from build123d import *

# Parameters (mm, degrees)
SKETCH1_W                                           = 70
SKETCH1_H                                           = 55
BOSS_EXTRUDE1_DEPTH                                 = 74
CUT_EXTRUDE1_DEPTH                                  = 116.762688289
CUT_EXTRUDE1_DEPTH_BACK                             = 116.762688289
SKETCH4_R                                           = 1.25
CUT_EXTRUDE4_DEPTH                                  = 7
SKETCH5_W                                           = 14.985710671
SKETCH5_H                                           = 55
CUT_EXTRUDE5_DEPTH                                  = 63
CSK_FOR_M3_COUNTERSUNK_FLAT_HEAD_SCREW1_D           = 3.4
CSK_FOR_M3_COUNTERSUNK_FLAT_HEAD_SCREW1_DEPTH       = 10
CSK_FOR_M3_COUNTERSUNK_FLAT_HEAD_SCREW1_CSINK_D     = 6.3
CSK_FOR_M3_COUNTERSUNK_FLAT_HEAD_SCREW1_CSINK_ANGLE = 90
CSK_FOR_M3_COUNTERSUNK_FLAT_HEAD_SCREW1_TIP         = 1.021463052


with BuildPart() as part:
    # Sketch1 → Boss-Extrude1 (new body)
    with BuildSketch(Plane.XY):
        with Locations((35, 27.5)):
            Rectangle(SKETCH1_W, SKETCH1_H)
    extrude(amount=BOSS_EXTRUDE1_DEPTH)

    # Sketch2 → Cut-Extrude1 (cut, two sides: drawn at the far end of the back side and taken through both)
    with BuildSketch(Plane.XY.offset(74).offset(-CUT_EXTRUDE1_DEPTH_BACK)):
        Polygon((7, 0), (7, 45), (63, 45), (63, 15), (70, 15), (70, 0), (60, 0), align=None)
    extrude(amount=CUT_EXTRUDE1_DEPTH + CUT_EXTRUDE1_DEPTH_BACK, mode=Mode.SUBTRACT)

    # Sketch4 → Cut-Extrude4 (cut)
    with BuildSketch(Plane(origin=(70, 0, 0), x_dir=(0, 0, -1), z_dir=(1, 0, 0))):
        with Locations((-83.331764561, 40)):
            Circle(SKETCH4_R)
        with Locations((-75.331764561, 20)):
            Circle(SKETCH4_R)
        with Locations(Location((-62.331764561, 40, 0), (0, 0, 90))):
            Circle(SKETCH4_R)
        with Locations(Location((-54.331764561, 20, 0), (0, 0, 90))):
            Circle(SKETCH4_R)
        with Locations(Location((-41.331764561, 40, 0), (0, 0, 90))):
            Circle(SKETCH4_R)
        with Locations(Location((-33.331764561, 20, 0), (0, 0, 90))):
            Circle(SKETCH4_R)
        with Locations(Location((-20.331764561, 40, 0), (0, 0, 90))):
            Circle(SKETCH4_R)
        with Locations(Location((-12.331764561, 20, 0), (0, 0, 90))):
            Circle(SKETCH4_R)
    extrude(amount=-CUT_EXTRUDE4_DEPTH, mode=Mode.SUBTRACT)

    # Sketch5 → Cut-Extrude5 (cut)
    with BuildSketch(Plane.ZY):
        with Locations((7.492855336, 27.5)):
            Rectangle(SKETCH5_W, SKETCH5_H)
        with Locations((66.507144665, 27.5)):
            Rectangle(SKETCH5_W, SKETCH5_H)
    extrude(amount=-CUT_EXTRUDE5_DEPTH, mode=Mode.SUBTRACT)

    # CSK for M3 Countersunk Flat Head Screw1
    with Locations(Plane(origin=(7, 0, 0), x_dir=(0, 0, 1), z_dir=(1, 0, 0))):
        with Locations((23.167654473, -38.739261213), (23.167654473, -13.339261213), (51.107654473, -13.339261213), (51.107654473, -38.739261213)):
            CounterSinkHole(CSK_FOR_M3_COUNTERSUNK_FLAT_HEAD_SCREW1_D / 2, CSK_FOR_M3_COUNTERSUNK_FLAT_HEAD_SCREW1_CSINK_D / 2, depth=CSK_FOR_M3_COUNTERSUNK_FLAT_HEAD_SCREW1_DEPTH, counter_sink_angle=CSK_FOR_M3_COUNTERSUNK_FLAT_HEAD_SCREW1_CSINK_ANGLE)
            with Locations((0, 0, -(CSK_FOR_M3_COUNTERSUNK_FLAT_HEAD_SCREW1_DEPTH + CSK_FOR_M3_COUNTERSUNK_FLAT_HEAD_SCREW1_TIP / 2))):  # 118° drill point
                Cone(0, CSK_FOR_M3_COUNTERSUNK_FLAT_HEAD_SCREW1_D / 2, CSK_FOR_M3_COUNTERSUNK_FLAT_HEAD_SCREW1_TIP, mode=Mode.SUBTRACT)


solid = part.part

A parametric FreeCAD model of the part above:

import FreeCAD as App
import Part
import Sketcher

doc = App.newDocument("Part")
body = doc.addObject("PartDesign::Body", "Body")

# Sketch on XY plane
sketch1 = doc.addObject("Sketcher::SketchObject", "Sketch")
body.addObject(sketch1)
sketch1.AttachmentSupport = (doc.XY_Plane, [""])
sketch1.MapMode = "FlatFace"
sketch1.addGeometry([
    Part.LineSegment(App.Vector(0, 55, 0), App.Vector(0, 0, 0)),
    Part.LineSegment(App.Vector(0, 0, 0), App.Vector(70, 0, 0)),
    Part.LineSegment(App.Vector(70, 0, 0), App.Vector(70, 55, 0)),
    Part.LineSegment(App.Vector(70, 55, 0), App.Vector(0, 55, 0)),
], False)
sketch1.addConstraint([
    Sketcher.Constraint("Coincident", 0, 2, 1, 1),
    Sketcher.Constraint("Coincident", 1, 2, 2, 1),
    Sketcher.Constraint("Coincident", 2, 2, 3, 1),
    Sketcher.Constraint("Coincident", 3, 2, 0, 1),
    Sketcher.Constraint("Vertical", 0),
    Sketcher.Constraint("Horizontal", 1),
    Sketcher.Constraint("Vertical", 2),
    Sketcher.Constraint("Horizontal", 3),
    Sketcher.Constraint("Coincident", 0, 2, -1, 1),
    Sketcher.Constraint("DistanceX", 1, 1, 1, 2, 70.0),
    Sketcher.Constraint("DistanceY", 0, 2, 0, 1, 55.0),
])
pad1 = doc.addObject("PartDesign::Pad", "Pad")
body.addObject(pad1)
pad1.Profile = sketch1
pad1.Length = 74

# Sketch on XY plane
sketch2 = doc.addObject("Sketcher::SketchObject", "Sketch001")
body.addObject(sketch2)
sketch2.AttachmentSupport = (doc.XY_Plane, [""])
sketch2.MapMode = "FlatFace"
sketch2.AttachmentOffset = App.Placement(App.Vector(0, 0, 74), App.Rotation())
sketch2.addGeometry([
    Part.LineSegment(App.Vector(7, 45, 0), App.Vector(7, 0, 0)),  # 0
    Part.LineSegment(App.Vector(7, 0, 0), App.Vector(70, 0, 0)),  # 1
    Part.LineSegment(App.Vector(70, 0, 0), App.Vector(70, 15, 0)),  # 2
    Part.LineSegment(App.Vector(70, 15, 0), App.Vector(63, 15, 0)),  # 3
    Part.LineSegment(App.Vector(63, 15, 0), App.Vector(63, 45, 0)),  # 4
    Part.LineSegment(App.Vector(63, 45, 0), App.Vector(7, 45, 0)),  # 5
], False)
sketch2.addConstraint([
    Sketcher.Constraint("Coincident", 0, 2, 1, 1),
    Sketcher.Constraint("Coincident", 1, 2, 2, 1),
    Sketcher.Constraint("Coincident", 2, 2, 3, 1),
    Sketcher.Constraint("Coincident", 3, 2, 4, 1),
    Sketcher.Constraint("Coincident", 4, 2, 5, 1),
    Sketcher.Constraint("Coincident", 5, 2, 0, 1),
    Sketcher.Constraint("Vertical", 0),
    Sketcher.Constraint("Horizontal", 1),
    Sketcher.Constraint("Vertical", 2),
    Sketcher.Constraint("Horizontal", 3),
    Sketcher.Constraint("Vertical", 4),
    Sketcher.Constraint("Horizontal", 5),
    Sketcher.Constraint("PointOnObject", 0, 2, -1),
    Sketcher.Constraint("DistanceX", 1, 1, 1, 2, 63.0),
    Sketcher.Constraint("DistanceX", 3, 2, 3, 1, 7.0),
    Sketcher.Constraint("DistanceY", 0, 2, 0, 1, 45.0),
    Sketcher.Constraint("DistanceY", 2, 1, 2, 2, 15.0),
    Sketcher.Constraint("DistanceX", -1, 1, 0, 2, 7.0),
])
pocket1 = doc.addObject("PartDesign::Pocket", "Pocket")
body.addObject(pocket1)
pocket1.Profile = sketch2
pocket1.Type = "ThroughAll"
pocket1.Midplane = True

# Sketch on YZ plane
sketch3 = doc.addObject("Sketcher::SketchObject", "Sketch002")
body.addObject(sketch3)
sketch3.AttachmentSupport = (doc.YZ_Plane, [""])
sketch3.MapMode = "FlatFace"
sketch3.AttachmentOffset = App.Placement(App.Vector(0, 0, 70), App.Rotation())
sketch3.addGeometry([
    Part.Circle(App.Vector(40, 83.3, 0), App.Vector(0, 0, 1), 1.2),  # 0
    Part.Circle(App.Vector(20, 75.3, 0), App.Vector(0, 0, 1), 1.2),  # 1
    Part.Circle(App.Vector(40, 62.3, 0), App.Vector(0, 0, 1), 1.2),  # 2
    Part.Circle(App.Vector(20, 54.3, 0), App.Vector(0, 0, 1), 1.2),  # 3
    Part.Circle(App.Vector(40, 41.3, 0), App.Vector(0, 0, 1), 1.2),  # 4
    Part.Circle(App.Vector(20, 33.3, 0), App.Vector(0, 0, 1), 1.2),  # 5
    Part.Circle(App.Vector(40, 20.3, 0), App.Vector(0, 0, 1), 1.2),  # 6
    Part.Circle(App.Vector(20, 12.3, 0), App.Vector(0, 0, 1), 1.2),  # 7
], False)
sketch3.addConstraint([
    Sketcher.Constraint("Equal", 0, 1),
    Sketcher.Constraint("Equal", 1, 2),
    Sketcher.Constraint("Equal", 2, 3),
    Sketcher.Constraint("Equal", 3, 4),
    Sketcher.Constraint("Equal", 4, 5),
    Sketcher.Constraint("Equal", 5, 6),
    Sketcher.Constraint("Equal", 6, 7),
    Sketcher.Constraint("Vertical", 0, 3, 2, 3),
    Sketcher.Constraint("Vertical", 1, 3, 3, 3),
    Sketcher.Constraint("Vertical", 2, 3, 4, 3),
    Sketcher.Constraint("Vertical", 3, 3, 5, 3),
    Sketcher.Constraint("Vertical", 4, 3, 6, 3),
    Sketcher.Constraint("Vertical", 5, 3, 7, 3),
    Sketcher.Constraint("Diameter", 0, 2.5),
    Sketcher.Constraint("DistanceX", -1, 1, 0, 3, 40.0),
    Sketcher.Constraint("DistanceX", -1, 1, 1, 3, 20.0),
    Sketcher.Constraint("DistanceY", 1, 3, 0, 3, 8.0),
    Sketcher.Constraint("DistanceY", 2, 3, 0, 3, 21.0),
    Sketcher.Constraint("DistanceY", 3, 3, 1, 3, 21.0),
    Sketcher.Constraint("DistanceY", 4, 3, 2, 3, 21.0),
    Sketcher.Constraint("DistanceY", 5, 3, 3, 3, 21.0),
    Sketcher.Constraint("DistanceY", 6, 3, 4, 3, 21.0),
    Sketcher.Constraint("DistanceY", 7, 3, 5, 3, 21.0),
    Sketcher.Constraint("DistanceY", -1, 1, 0, 3, 83.331765),
])
pocket2 = doc.addObject("PartDesign::Pocket", "Pocket001")
body.addObject(pocket2)
pocket2.Profile = sketch3
pocket2.Length = 7

# Sketch on YZ plane
sketch4 = doc.addObject("Sketcher::SketchObject", "Sketch003")
body.addObject(sketch4)
sketch4.AttachmentSupport = (doc.YZ_Plane, [""])
sketch4.MapMode = "FlatFace"
sketch4.addGeometry([
    Part.LineSegment(App.Vector(55, 0, 0), App.Vector(0, 0, 0)),  # 0
    Part.LineSegment(App.Vector(0, 0, 0), App.Vector(0, 15, 0)),  # 1
    Part.LineSegment(App.Vector(0, 15, 0), App.Vector(55, 15, 0)),  # 2
    Part.LineSegment(App.Vector(55, 15, 0), App.Vector(55, 0, 0)),  # 3
    Part.LineSegment(App.Vector(55, 59, 0), App.Vector(0, 59, 0)),  # 4
    Part.LineSegment(App.Vector(0, 59, 0), App.Vector(0, 74, 0)),  # 5
    Part.LineSegment(App.Vector(0, 74, 0), App.Vector(55, 74, 0)),  # 6
    Part.LineSegment(App.Vector(55, 74, 0), App.Vector(55, 59, 0)),  # 7
], False)
sketch4.addConstraint([
    Sketcher.Constraint("Coincident", 0, 2, 1, 1),
    Sketcher.Constraint("Coincident", 1, 2, 2, 1),
    Sketcher.Constraint("Coincident", 2, 2, 3, 1),
    Sketcher.Constraint("Coincident", 3, 2, 0, 1),
    Sketcher.Constraint("Coincident", 4, 2, 5, 1),
    Sketcher.Constraint("Coincident", 5, 2, 6, 1),
    Sketcher.Constraint("Coincident", 6, 2, 7, 1),
    Sketcher.Constraint("Coincident", 7, 2, 4, 1),
    Sketcher.Constraint("Horizontal", 0),
    Sketcher.Constraint("Vertical", 1),
    Sketcher.Constraint("Horizontal", 2),
    Sketcher.Constraint("Vertical", 3),
    Sketcher.Constraint("Horizontal", 4),
    Sketcher.Constraint("Vertical", 5),
    Sketcher.Constraint("Horizontal", 6),
    Sketcher.Constraint("Vertical", 7),
    Sketcher.Constraint("Coincident", 0, 2, -1, 1),
    Sketcher.Constraint("PointOnObject", 4, 2, -2),
    Sketcher.Constraint("Vertical", 3, 2, 6, 2),
    Sketcher.Constraint("Equal", 3, 5),
    Sketcher.Constraint("DistanceX", 0, 2, 0, 1, 55.0),
    Sketcher.Constraint("DistanceY", -1, 1, 5, 2, 74.0),
    Sketcher.Constraint("DistanceY", 1, 1, 1, 2, 14.985711),
])
pocket3 = doc.addObject("PartDesign::Pocket", "Pocket002")
body.addObject(pocket3)
pocket3.Profile = sketch4
pocket3.Length = 63
pocket3.Reversed = True

# Sketch on YZ plane
sketch5 = doc.addObject("Sketcher::SketchObject", "Sketch004")
body.addObject(sketch5)
sketch5.AttachmentSupport = (doc.YZ_Plane, [""])
sketch5.MapMode = "FlatFace"
sketch5.AttachmentOffset = App.Placement(App.Vector(0, 0, 7), App.Rotation())
sketch5.addGeometry([
    Part.Circle(App.Vector(38.7, 23.2, 0), App.Vector(0, 0, 1), 1.7),
    Part.Circle(App.Vector(13.3, 23.2, 0), App.Vector(0, 0, 1), 1.7),
    Part.Circle(App.Vector(13.3, 51.1, 0), App.Vector(0, 0, 1), 1.7),
    Part.Circle(App.Vector(38.7, 51.1, 0), App.Vector(0, 0, 1), 1.7),
], False)
sketch5.addConstraint([
    Sketcher.Constraint("Equal", 0, 1),
    Sketcher.Constraint("Equal", 1, 2),
    Sketcher.Constraint("Equal", 2, 3),
    Sketcher.Constraint("Horizontal", 0, 3, 1, 3),
    Sketcher.Constraint("Horizontal", 2, 3, 3, 3),
    Sketcher.Constraint("Vertical", 1, 3, 2, 3),
    Sketcher.Constraint("Vertical", 0, 3, 3, 3),
    Sketcher.Constraint("Diameter", 0, 3.4),
    Sketcher.Constraint("DistanceX", 1, 3, 0, 3, 25.4),
    Sketcher.Constraint("DistanceY", 1, 3, 2, 3, 27.94),
    Sketcher.Constraint("DistanceX", -1, 1, 0, 3, 38.739261),
    Sketcher.Constraint("DistanceY", -1, 1, 0, 3, 23.167654),
])
doc.recompute()
hole = doc.addObject("PartDesign::Hole", "Hole")
body.addObject(hole)
hole.Profile = sketch5
hole.ThreadType = "None"
hole.Diameter = 3.4
hole.DepthType = "Dimension"
hole.Depth = 10
hole.DrillPoint = "Angled"
hole.DrillPointAngle = 118
hole.HoleCutType = "Countersink"
hole.HoleCutDiameter = 6.3
hole.HoleCutCountersinkAngle = 90

doc.recompute()
